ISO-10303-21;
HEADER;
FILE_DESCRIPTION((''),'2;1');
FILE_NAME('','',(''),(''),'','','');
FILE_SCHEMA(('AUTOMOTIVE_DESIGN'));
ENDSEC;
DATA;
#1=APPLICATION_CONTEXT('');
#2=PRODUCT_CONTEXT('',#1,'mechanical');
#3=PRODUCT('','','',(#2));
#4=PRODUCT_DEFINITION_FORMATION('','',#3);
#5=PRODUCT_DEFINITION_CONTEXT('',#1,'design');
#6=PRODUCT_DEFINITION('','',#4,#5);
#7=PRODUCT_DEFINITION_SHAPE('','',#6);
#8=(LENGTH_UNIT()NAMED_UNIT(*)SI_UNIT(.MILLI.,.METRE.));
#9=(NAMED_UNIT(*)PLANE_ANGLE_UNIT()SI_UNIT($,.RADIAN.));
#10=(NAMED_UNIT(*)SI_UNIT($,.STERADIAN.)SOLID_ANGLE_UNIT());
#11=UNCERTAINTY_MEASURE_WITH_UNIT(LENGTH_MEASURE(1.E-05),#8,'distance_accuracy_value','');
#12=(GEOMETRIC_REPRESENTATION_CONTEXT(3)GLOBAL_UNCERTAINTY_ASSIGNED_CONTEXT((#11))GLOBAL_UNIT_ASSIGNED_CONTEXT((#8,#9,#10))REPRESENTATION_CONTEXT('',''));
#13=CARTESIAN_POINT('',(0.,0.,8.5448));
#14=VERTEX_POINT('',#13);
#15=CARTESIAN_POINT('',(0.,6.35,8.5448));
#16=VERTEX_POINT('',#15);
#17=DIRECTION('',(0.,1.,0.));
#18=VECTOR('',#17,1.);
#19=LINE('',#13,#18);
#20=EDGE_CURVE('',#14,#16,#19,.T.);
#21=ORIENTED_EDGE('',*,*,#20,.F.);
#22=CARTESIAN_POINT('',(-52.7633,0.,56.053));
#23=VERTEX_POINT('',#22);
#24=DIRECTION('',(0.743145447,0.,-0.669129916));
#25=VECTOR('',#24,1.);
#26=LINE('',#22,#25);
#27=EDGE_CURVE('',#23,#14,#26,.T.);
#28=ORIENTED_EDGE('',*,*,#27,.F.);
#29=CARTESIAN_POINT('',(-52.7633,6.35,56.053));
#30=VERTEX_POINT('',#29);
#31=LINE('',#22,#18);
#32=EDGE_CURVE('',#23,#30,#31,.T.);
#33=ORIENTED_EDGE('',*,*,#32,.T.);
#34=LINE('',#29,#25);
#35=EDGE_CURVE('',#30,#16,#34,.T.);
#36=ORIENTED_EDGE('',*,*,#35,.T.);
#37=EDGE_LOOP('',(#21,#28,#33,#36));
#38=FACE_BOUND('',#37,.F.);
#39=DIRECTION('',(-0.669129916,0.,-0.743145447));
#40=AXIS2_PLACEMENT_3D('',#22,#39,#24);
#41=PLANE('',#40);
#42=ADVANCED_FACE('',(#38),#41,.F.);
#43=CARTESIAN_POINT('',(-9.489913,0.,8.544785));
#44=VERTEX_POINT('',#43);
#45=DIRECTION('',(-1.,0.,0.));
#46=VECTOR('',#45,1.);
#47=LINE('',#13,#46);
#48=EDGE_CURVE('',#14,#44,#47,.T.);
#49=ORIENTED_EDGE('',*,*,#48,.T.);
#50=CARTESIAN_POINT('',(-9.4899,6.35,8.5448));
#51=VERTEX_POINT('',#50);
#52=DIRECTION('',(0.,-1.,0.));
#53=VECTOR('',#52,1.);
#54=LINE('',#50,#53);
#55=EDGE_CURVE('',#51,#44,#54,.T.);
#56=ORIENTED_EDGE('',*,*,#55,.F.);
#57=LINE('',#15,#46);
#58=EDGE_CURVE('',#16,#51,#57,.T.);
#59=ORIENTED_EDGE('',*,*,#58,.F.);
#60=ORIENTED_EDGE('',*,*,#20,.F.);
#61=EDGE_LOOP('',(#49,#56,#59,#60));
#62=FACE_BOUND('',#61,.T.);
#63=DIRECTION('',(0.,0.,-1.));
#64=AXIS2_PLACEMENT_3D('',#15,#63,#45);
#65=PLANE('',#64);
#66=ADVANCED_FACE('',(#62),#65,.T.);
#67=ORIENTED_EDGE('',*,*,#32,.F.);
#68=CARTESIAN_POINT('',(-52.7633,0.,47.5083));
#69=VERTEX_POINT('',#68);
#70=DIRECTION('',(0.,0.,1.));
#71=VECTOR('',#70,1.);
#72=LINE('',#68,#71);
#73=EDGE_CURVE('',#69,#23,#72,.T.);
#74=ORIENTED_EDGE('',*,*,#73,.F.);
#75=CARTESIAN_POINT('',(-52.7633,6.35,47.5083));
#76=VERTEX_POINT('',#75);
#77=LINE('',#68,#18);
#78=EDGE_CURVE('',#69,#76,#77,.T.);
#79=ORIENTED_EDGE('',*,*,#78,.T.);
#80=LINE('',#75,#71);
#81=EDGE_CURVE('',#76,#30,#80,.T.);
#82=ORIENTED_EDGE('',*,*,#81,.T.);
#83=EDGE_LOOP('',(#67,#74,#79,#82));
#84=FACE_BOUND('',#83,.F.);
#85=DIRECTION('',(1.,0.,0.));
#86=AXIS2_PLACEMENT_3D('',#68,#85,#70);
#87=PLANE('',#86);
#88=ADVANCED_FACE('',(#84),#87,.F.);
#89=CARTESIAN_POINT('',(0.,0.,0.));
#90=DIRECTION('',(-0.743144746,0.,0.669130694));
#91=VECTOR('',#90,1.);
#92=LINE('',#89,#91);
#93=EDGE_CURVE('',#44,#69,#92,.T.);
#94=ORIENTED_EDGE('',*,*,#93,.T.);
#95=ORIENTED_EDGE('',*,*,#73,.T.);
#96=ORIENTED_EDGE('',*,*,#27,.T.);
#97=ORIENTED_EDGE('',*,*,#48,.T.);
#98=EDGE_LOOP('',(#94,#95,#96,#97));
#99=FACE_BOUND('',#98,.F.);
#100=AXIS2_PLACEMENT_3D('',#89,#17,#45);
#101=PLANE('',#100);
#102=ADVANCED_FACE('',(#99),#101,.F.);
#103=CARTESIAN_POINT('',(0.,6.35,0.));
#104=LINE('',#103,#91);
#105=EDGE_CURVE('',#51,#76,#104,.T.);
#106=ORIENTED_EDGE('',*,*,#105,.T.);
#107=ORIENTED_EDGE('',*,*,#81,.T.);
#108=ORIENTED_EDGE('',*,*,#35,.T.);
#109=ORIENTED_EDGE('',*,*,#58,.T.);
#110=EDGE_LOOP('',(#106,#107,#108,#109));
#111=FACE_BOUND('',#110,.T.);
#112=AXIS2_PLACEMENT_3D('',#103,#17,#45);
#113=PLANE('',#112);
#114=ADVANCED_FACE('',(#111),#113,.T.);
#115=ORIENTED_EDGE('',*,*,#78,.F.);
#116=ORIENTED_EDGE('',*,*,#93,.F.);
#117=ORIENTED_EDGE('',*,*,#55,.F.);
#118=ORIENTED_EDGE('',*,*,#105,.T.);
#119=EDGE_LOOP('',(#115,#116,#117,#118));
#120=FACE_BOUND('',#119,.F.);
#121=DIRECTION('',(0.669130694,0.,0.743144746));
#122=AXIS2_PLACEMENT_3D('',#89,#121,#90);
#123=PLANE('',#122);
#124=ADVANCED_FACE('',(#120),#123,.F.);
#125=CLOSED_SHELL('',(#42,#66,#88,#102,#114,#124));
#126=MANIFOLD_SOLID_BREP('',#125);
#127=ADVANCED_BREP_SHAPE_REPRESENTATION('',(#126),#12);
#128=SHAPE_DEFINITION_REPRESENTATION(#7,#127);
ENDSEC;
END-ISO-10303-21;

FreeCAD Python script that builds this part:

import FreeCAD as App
import Part
import Sketcher
Q = App.Units.Quantity

doc = App.newDocument("Part")
body = doc.addObject("PartDesign::Body", "Body")

# Sketch on XZ plane
sketch1 = body.newObject("Sketcher::SketchObject", "Sketch")
sketch1.AttachmentSupport = (doc.getObject("XZ_Plane"), [""])
sketch1.MapMode = "FlatFace"
sketch1.addGeometry(Part.LineSegment(App.Vector(0, 8.5448, 0), App.Vector(0, 0, 0)), False)
sketch1.addGeometry(Part.LineSegment(App.Vector(0, 0, 0), App.Vector(-52.7633, 47.5083, 0)), False)
sketch1.addGeometry(Part.LineSegment(App.Vector(-52.7633, 47.5083, 0), App.Vector(-52.7633, 56.053, 0)), False)
sketch1.addGeometry(Part.LineSegment(App.Vector(-52.7633, 56.053, 0), App.Vector(0, 8.5448, 0)), False)
sketch1.addConstraint(Sketcher.Constraint("Coincident", 0, 2, 1, 1))
sketch1.addConstraint(Sketcher.Constraint("Coincident", 1, 2, 2, 1))
sketch1.addConstraint(Sketcher.Constraint("Coincident", 2, 2, 3, 1))
sketch1.addConstraint(Sketcher.Constraint("Coincident", 3, 2, 0, 1))
sketch1.addConstraint(Sketcher.Constraint("Vertical", 0))
sketch1.addConstraint(Sketcher.Constraint("Vertical", 2))
sketch1.addConstraint(Sketcher.Constraint("Coincident", 0, 2, -1, 1))
sketch1.addConstraint(Sketcher.Constraint("Parallel", 1, 3))
sketch1.addConstraint(Sketcher.Constraint("Angle", 3, Q("-42 deg")))
sketch1.addConstraint(Sketcher.Constraint("Distance", 1, 71.0))
sketch1.addConstraint(Sketcher.Constraint("DistanceY", 0, 2, 0, 1, 8.5448))
pad1 = body.newObject("PartDesign::Pad", "Pad")
pad1.Profile = sketch1
pad1.Length = 6.35
pad1.Reversed = True

# Sketch on XZ plane
sketch2 = body.newObject("Sketcher::SketchObject", "Sketch001")
sketch2.AttachmentSupport = (doc.getObject("XZ_Plane"), [""])
sketch2.MapMode = "FlatFace"
sketch2.AttachmentOffset = App.Placement(App.Vector(0, 0, -6.35), App.Rotation())
sketch2.addGeometry(Part.LineSegment(App.Vector(-9.4899, 8.5448, 0), App.Vector(0, 8.5448, 0)), False)
sketch2.addGeometry(Part.LineSegment(App.Vector(0, 8.5448, 0), App.Vector(0, 0, 0)), False)
sketch2.addGeometry(Part.LineSegment(App.Vector(0, 0, 0), App.Vector(-9.489927, 8.54477, 0)), False)
sketch2.addConstraint(Sketcher.Constraint("Coincident", 0, 2, 1, 1))
sketch2.addConstraint(Sketcher.Constraint("Coincident", 1, 2, 2, 1))
sketch2.addConstraint(Sketcher.Constraint("Coincident", 2, 2, 0, 1))
sketch2.addConstraint(Sketcher.Constraint("Horizontal", 0))
sketch2.addConstraint(Sketcher.Constraint("Vertical", 1))
sketch2.addConstraint(Sketcher.Constraint("Coincident", 1, 2, -1, 1))
sketch2.addConstraint(Sketcher.Constraint("Angle", 2, Q("138 deg")))
sketch2.addConstraint(Sketcher.Constraint("DistanceX", 0, 1, 0, 2, 9.49))
pocket1 = body.newObject("PartDesign::Pocket", "Pocket")
pocket1.Profile = sketch2
pocket1.Length = 10
pocket1.Reversed = True

doc.recompute()
